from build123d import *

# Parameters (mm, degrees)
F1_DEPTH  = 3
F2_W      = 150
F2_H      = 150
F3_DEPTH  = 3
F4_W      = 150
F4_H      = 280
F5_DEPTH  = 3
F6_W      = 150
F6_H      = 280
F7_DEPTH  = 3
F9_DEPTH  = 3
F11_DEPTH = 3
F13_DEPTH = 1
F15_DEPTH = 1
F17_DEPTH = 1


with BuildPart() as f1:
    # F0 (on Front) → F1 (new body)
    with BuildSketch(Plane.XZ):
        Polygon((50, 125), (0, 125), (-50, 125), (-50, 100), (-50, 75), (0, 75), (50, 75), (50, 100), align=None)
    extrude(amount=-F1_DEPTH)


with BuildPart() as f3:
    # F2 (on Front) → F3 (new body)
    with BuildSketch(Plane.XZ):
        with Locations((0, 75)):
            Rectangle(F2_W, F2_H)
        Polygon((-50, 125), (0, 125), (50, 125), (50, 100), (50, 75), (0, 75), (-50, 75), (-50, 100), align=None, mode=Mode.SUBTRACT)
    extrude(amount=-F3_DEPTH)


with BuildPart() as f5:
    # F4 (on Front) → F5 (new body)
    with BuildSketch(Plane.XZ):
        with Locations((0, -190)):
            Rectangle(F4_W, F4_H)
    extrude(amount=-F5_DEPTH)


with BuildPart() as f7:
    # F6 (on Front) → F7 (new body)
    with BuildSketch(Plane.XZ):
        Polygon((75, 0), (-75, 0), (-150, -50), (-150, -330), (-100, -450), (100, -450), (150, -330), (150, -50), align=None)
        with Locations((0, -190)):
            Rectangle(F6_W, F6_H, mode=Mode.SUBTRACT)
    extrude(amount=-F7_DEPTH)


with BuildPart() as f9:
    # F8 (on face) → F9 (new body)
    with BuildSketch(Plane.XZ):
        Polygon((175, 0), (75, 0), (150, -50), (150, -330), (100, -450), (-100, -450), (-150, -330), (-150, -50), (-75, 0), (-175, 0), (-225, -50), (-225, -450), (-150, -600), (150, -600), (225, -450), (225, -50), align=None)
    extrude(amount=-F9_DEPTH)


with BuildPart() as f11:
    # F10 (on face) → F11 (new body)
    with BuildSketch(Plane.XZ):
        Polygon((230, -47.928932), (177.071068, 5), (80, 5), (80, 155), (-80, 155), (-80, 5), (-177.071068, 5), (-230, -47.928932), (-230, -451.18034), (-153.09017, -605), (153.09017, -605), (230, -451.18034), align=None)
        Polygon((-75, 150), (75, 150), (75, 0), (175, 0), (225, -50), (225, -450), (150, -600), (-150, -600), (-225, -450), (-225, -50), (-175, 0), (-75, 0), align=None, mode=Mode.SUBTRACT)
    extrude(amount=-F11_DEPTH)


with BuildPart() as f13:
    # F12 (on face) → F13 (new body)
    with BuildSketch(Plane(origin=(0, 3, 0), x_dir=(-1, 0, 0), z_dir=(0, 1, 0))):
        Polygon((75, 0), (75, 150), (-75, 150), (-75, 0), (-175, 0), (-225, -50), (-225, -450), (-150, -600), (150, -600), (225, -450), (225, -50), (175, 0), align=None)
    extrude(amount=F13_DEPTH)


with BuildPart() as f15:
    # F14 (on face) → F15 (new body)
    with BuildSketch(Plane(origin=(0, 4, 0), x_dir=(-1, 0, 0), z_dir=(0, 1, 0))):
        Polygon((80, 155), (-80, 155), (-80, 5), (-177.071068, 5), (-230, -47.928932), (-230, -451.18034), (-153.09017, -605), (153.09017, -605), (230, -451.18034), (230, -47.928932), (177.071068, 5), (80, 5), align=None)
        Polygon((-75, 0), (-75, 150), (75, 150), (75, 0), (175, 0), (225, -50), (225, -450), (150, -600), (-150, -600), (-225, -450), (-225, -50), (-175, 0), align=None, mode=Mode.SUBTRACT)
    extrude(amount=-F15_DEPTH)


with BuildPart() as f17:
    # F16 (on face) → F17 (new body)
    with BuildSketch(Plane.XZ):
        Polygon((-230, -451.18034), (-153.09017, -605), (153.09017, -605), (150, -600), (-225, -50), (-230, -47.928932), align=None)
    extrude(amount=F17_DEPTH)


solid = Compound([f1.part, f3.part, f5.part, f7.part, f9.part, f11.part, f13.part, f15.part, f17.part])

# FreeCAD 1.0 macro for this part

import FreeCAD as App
import Part
import Sketcher

V = App.Vector
Q = App.Units.Quantity

doc = App.newDocument("Part")
body = doc.addObject("PartDesign::Body", "Body")

sketch1 = doc.addObject("Sketcher::SketchObject", "Sketch")
body.addObject(sketch1)
sketch1.AttachmentSupport = (doc.XZ_Plane, [""])
sketch1.MapMode = "FlatFace"
sketch1.addGeometry(Part.LineSegment(V(50, 125, 0), V(-50, 125, 0)), False)
sketch1.addGeometry(Part.LineSegment(V(-50, 125, 0), V(-50, 75, 0)), False)
sketch1.addGeometry(Part.LineSegment(V(-50, 75, 0), V(50, 75, 0)), False)
sketch1.addGeometry(Part.LineSegment(V(50, 75, 0), V(50, 125, 0)), False)
sketch1.addConstraint(Sketcher.Constraint("Coincident", 0, 2, 1, 1))
sketch1.addConstraint(Sketcher.Constraint("Coincident", 1, 2, 2, 1))
sketch1.addConstraint(Sketcher.Constraint("Coincident", 2, 2, 3, 1))
sketch1.addConstraint(Sketcher.Constraint("Coincident", 3, 2, 0, 1))
sketch1.addConstraint(Sketcher.Constraint("Horizontal", 0))
sketch1.addConstraint(Sketcher.Constraint("Vertical", 1))
sketch1.addConstraint(Sketcher.Constraint("Horizontal", 2))
sketch1.addConstraint(Sketcher.Constraint("Vertical", 3))
sketch1.addConstraint(Sketcher.Constraint("DistanceX", 0, 2, 0, 1, 100.0))
sketch1.addConstraint(Sketcher.Constraint("DistanceY", 1, 2, 1, 1, 50.0))
sketch1.addConstraint(Sketcher.Constraint("DistanceX", 0, 2, -1, 1, 50.0))
sketch1.addConstraint(Sketcher.Constraint("DistanceY", -1, 1, 0, 2, 125.0))
pad1 = doc.addObject("PartDesign::Pad", "Pad")
body.addObject(pad1)
pad1.Profile = sketch1
pad1.Length = 3
pad1.Reversed = True
body2 = doc.addObject("PartDesign::Body", "Body001")

sketch2 = doc.addObject("Sketcher::SketchObject", "Sketch001")
body2.addObject(sketch2)
sketch2.AttachmentSupport = (doc.getObject("XZ_Plane001"), [""])
sketch2.MapMode = "FlatFace"
sketch2.addGeometry(Part.LineSegment(V(-75, 150, 0), V(-75, 0, 0)), False)
sketch2.addGeometry(Part.LineSegment(V(-75, 0, 0), V(75, 0, 0)), False)
sketch2.addGeometry(Part.LineSegment(V(75, 0, 0), V(75, 150, 0)), False)
sketch2.addGeometry(Part.LineSegment(V(75, 150, 0), V(-75, 150, 0)), False)
sketch2.addGeometry(Part.LineSegment(V(-50, 75, 0), V(-50, 125, 0)), False)
sketch2.addGeometry(Part.LineSegment(V(-50, 125, 0), V(50, 125, 0)), False)
sketch2.addGeometry(Part.LineSegment(V(50, 125, 0), V(50, 75, 0)), False)
sketch2.addGeometry(Part.LineSegment(V(50, 75, 0), V(-50, 75, 0)), False)
sketch2.addConstraint(Sketcher.Constraint("Coincident", 0, 2, 1, 1))
sketch2.addConstraint(Sketcher.Constraint("Coincident", 1, 2, 2, 1))
sketch2.addConstraint(Sketcher.Constraint("Coincident", 2, 2, 3, 1))
sketch2.addConstraint(Sketcher.Constraint("Coincident", 3, 2, 0, 1))
sketch2.addConstraint(Sketcher.Constraint("Coincident", 4, 2, 5, 1))
sketch2.addConstraint(Sketcher.Constraint("Coincident", 5, 2, 6, 1))
sketch2.addConstraint(Sketcher.Constraint("Coincident", 6, 2, 7, 1))
sketch2.addConstraint(Sketcher.Constraint("Coincident", 7, 2, 4, 1))
sketch2.addConstraint(Sketcher.Constraint("Vertical", 0))
sketch2.addConstraint(Sketcher.Constraint("Horizontal", 1))
sketch2.addConstraint(Sketcher.Constraint("Vertical", 2))
sketch2.addConstraint(Sketcher.Constraint("Horizontal", 3))
sketch2.addConstraint(Sketcher.Constraint("Vertical", 4))
sketch2.addConstraint(Sketcher.Constraint("Horizontal", 5))
sketch2.addConstraint(Sketcher.Constraint("Vertical", 6))
sketch2.addConstraint(Sketcher.Constraint("Horizontal", 7))
sketch2.addConstraint(Sketcher.Constraint("Symmetric", 0, 2, 1, 2, -1, 1))
sketch2.addConstraint(Sketcher.Constraint("Equal", 3, 0))
sketch2.addConstraint(Sketcher.Constraint("DistanceX", 1, 1, 1, 2, 150.0))
sketch2.addConstraint(Sketcher.Constraint("DistanceX", 5, 1, 5, 2, 100.0))
sketch2.addConstraint(Sketcher.Constraint("DistanceY", 4, 1, 4, 2, 50.0))
sketch2.addConstraint(Sketcher.Constraint("DistanceX", 4, 2, -1, 1, 50.0))
sketch2.addConstraint(Sketcher.Constraint("DistanceY", -1, 1, 4, 2, 125.0))
pad2 = doc.addObject("PartDesign::Pad", "Pad001")
body2.addObject(pad2)
pad2.Profile = sketch2
pad2.Length = 3
pad2.Reversed = True
body3 = doc.addObject("PartDesign::Body", "Body002")

sketch3 = doc.addObject("Sketcher::SketchObject", "Sketch002")
body3.addObject(sketch3)
sketch3.AttachmentSupport = (doc.getObject("XZ_Plane002"), [""])
sketch3.MapMode = "FlatFace"
sketch3.addGeometry(Part.LineSegment(V(-75, -50, 0), V(-75, -330, 0)), False)
sketch3.addGeometry(Part.LineSegment(V(-75, -330, 0), V(75, -330, 0)), False)
sketch3.addGeometry(Part.LineSegment(V(75, -330, 0), V(75, -50, 0)), False)
sketch3.addGeometry(Part.LineSegment(V(75, -50, 0), V(-75, -50, 0)), False)
sketch3.addConstraint(Sketcher.Constraint("Coincident", 0, 2, 1, 1))
sketch3.addConstraint(Sketcher.Constraint("Coincident", 1, 2, 2, 1))
sketch3.addConstraint(Sketcher.Constraint("Coincident", 2, 2, 3, 1))
sketch3.addConstraint(Sketcher.Constraint("Coincident", 3, 2, 0, 1))
sketch3.addConstraint(Sketcher.Constraint("Vertical", 0))
sketch3.addConstraint(Sketcher.Constraint("Horizontal", 1))
sketch3.addConstraint(Sketcher.Constraint("Vertical", 2))
sketch3.addConstraint(Sketcher.Constraint("Horizontal", 3))
sketch3.addConstraint(Sketcher.Constraint("DistanceX", 1, 1, 1, 2, 150.0))
sketch3.addConstraint(Sketcher.Constraint("DistanceY", 0, 2, 0, 1, 280.0))
sketch3.addConstraint(Sketcher.Constraint("DistanceX", 0, 2, -1, 1, 75.0))
sketch3.addConstraint(Sketcher.Constraint("DistanceY", 0, 2, -1, 1, 330.0))
pad3 = doc.addObject("PartDesign::Pad", "Pad002")
body3.addObject(pad3)
pad3.Profile = sketch3
pad3.Length = 3
pad3.Reversed = True
body4 = doc.addObject("PartDesign::Body", "Body003")

sketch4 = doc.addObject("Sketcher::SketchObject", "Sketch003")
body4.addObject(sketch4)
sketch4.AttachmentSupport = (doc.getObject("XZ_Plane003"), [""])
sketch4.MapMode = "FlatFace"
sketch4.addGeometry(Part.LineSegment(V(75, 0, 0), V(-75, 0, 0)), False)
sketch4.addGeometry(Part.LineSegment(V(-75, 0, 0), V(-150, -50, 0)), False)
sketch4.addGeometry(Part.LineSegment(V(-150, -50, 0), V(-150, -330, 0)), False)
sketch4.addGeometry(Part.LineSegment(V(-150, -330, 0), V(-100, -450, 0)), False)
sketch4.addGeometry(Part.LineSegment(V(-100, -450, 0), V(100, -450, 0)), False)
sketch4.addGeometry(Part.LineSegment(V(100, -450, 0), V(150, -330, 0)), False)
sketch4.addGeometry(Part.LineSegment(V(150, -330, 0), V(150, -50, 0)), False)
sketch4.addGeometry(Part.LineSegment(V(150, -50, 0), V(75, 0, 0)), False)
sketch4.addGeometry(Part.LineSegment(V(75, -330, 0), V(-75, -330, 0)), False)
sketch4.addGeometry(Part.LineSegment(V(-75, -330, 0), V(-75, -50, 0)), False)
sketch4.addGeometry(Part.LineSegment(V(-75, -50, 0), V(75, -50, 0)), False)
sketch4.addGeometry(Part.LineSegment(V(75, -50, 0), V(75, -330, 0)), False)
sketch4.addConstraint(Sketcher.Constraint("Coincident", 0, 2, 1, 1))
sketch4.addConstraint(Sketcher.Constraint("Coincident", 1, 2, 2, 1))
sketch4.addConstraint(Sketcher.Constraint("Coincident", 2, 2, 3, 1))
sketch4.addConstraint(Sketcher.Constraint("Coincident", 3, 2, 4, 1))
sketch4.addConstraint(Sketcher.Constraint("Coincident", 4, 2, 5, 1))
sketch4.addConstraint(Sketcher.Constraint("Coincident", 5, 2, 6, 1))
sketch4.addConstraint(Sketcher.Constraint("Coincident", 6, 2, 7, 1))
sketch4.addConstraint(Sketcher.Constraint("Coincident", 7, 2, 0, 1))
sketch4.addConstraint(Sketcher.Constraint("Coincident", 8, 2, 9, 1))
sketch4.addConstraint(Sketcher.Constraint("Coincident", 9, 2, 10, 1))
sketch4.addConstraint(Sketcher.Constraint("Coincident", 10, 2, 11, 1))
sketch4.addConstraint(Sketcher.Constraint("Coincident", 11, 2, 8, 1))
sketch4.addConstraint(Sketcher.Constraint("Horizontal", 0))
sketch4.addConstraint(Sketcher.Constraint("Vertical", 2))
sketch4.addConstraint(Sketcher.Constraint("Horizontal", 4))
sketch4.addConstraint(Sketcher.Constraint("Vertical", 6))
sketch4.addConstraint(Sketcher.Constraint("Horizontal", 8))
sketch4.addConstraint(Sketcher.Constraint("Vertical", 9))
sketch4.addConstraint(Sketcher.Constraint("Horizontal", 10))
sketch4.addConstraint(Sketcher.Constraint("Vertical", 11))
sketch4.addConstraint(Sketcher.Constraint("Symmetric", 0, 2, 7, 2, -1, 1))
sketch4.addConstraint(Sketcher.Constraint("Symmetric", 2, 2, 5, 2, -2))
sketch4.addConstraint(Sketcher.Constraint("Horizontal", 1, 2, 6, 2))
sketch4.addConstraint(Sketcher.Constraint("Horizontal", 5, 2, 8, 2))
sketch4.addConstraint(Sketcher.Constraint("Horizontal", 6, 2, 9, 2))
sketch4.addConstraint(Sketcher.Constraint("Vertical", 0, 2, 8, 2))
sketch4.addConstraint(Sketcher.Constraint("Vertical", 7, 2, 10, 2))
sketch4.addConstraint(Sketcher.Constraint("Equal", 3, 5))
sketch4.addConstraint(Sketcher.Constraint("DistanceX", 0, 2, 0, 1, 150.0))
sketch4.addConstraint(Sketcher.Constraint("DistanceX", 4, 1, 4, 2, 200.0))
sketch4.addConstraint(Sketcher.Constraint("DistanceY", 2, 2, 2, 1, 280.0))
sketch4.addConstraint(Sketcher.Constraint("Distance", 3, 130.0))
sketch4.addConstraint(Sketcher.Constraint("DistanceX", 1, 2, -1, 1, 150.0))
sketch4.addConstraint(Sketcher.Constraint("DistanceY", 1, 2, -1, 1, 50.0))
pad4 = doc.addObject("PartDesign::Pad", "Pad003")
body4.addObject(pad4)
pad4.Profile = sketch4
pad4.Length = 3
pad4.Reversed = True
body5 = doc.addObject("PartDesign::Body", "Body004")

sketch5 = doc.addObject("Sketcher::SketchObject", "Sketch004")
body5.addObject(sketch5)
sketch5.AttachmentSupport = (doc.getObject("XZ_Plane004"), [""])
sketch5.MapMode = "FlatFace"
sketch5.addGeometry(Part.LineSegment(V(175, 0, 0), V(75, 0, 0)), False)
sketch5.addGeometry(Part.LineSegment(V(75, 0, 0), V(150, -50, 0)), False)
sketch5.addGeometry(Part.LineSegment(V(150, -50, 0), V(150, -330, 0)), False)
sketch5.addGeometry(Part.LineSegment(V(150, -330, 0), V(100, -450, 0)), False)
sketch5.addGeometry(Part.LineSegment(V(100, -450, 0), V(-100, -450, 0)), False)
sketch5.addGeometry(Part.LineSegment(V(-100, -450, 0), V(-150, -330, 0)), False)
sketch5.addGeometry(Part.LineSegment(V(-150, -330, 0), V(-150, -50, 0)), False)
sketch5.addGeometry(Part.LineSegment(V(-150, -50, 0), V(-75, 0, 0)), False)
sketch5.addGeometry(Part.LineSegment(V(-75, 0, 0), V(-175, 0, 0)), False)
sketch5.addGeometry(Part.LineSegment(V(-175, 0, 0), V(-225, -50, 0)), False)
sketch5.addGeometry(Part.LineSegment(V(-225, -50, 0), V(-225, -450, 0)), False)
sketch5.addGeometry(Part.LineSegment(V(-225, -450, 0), V(-150, -600, 0)), False)
sketch5.addGeometry(Part.LineSegment(V(-150, -600, 0), V(150, -600, 0)), False)
sketch5.addGeometry(Part.LineSegment(V(150, -600, 0), V(225, -450, 0)), False)
sketch5.addGeometry(Part.LineSegment(V(225, -450, 0), V(225, -50, 0)), False)
sketch5.addGeometry(Part.LineSegment(V(225, -50, 0), V(175, 0, 0)), False)
sketch5.addConstraint(Sketcher.Constraint("Coincident", 0, 2, 1, 1))
sketch5.addConstraint(Sketcher.Constraint("Coincident", 1, 2, 2, 1))
sketch5.addConstraint(Sketcher.Constraint("Coincident", 2, 2, 3, 1))
sketch5.addConstraint(Sketcher.Constraint("Coincident", 3, 2, 4, 1))
sketch5.addConstraint(Sketcher.Constraint("Coincident", 4, 2, 5, 1))
sketch5.addConstraint(Sketcher.Constraint("Coincident", 5, 2, 6, 1))
sketch5.addConstraint(Sketcher.Constraint("Coincident", 6, 2, 7, 1))
sketch5.addConstraint(Sketcher.Constraint("Coincident", 7, 2, 8, 1))
sketch5.addConstraint(Sketcher.Constraint("Coincident", 8, 2, 9, 1))
sketch5.addConstraint(Sketcher.Constraint("Coincident", 9, 2, 10, 1))
sketch5.addConstraint(Sketcher.Constraint("Coincident", 10, 2, 11, 1))
sketch5.addConstraint(Sketcher.Constraint("Coincident", 11, 2, 12, 1))
sketch5.addConstraint(Sketcher.Constraint("Coincident", 12, 2, 13, 1))
sketch5.addConstraint(Sketcher.Constraint("Coincident", 13, 2, 14, 1))
sketch5.addConstraint(Sketcher.Constraint("Coincident", 14, 2, 15, 1))
sketch5.addConstraint(Sketcher.Constraint("Coincident", 15, 2, 0, 1))
sketch5.addConstraint(Sketcher.Constraint("Horizontal", 0))
sketch5.addConstraint(Sketcher.Constraint("Vertical", 2))
sketch5.addConstraint(Sketcher.Constraint("Horizontal", 4))
sketch5.addConstraint(Sketcher.Constraint("Vertical", 6))
sketch5.addConstraint(Sketcher.Constraint("Horizontal", 8))
sketch5.addConstraint(Sketcher.Constraint("Vertical", 10))
sketch5.addConstraint(Sketcher.Constraint("Horizontal", 12))
sketch5.addConstraint(Sketcher.Constraint("Vertical", 14))
sketch5.addConstraint(Sketcher.Constraint("Symmetric", 0, 2, 7, 2, -1, 1))
sketch5.addConstraint(Sketcher.Constraint("Symmetric", 2, 2, 5, 2, -2))
sketch5.addConstraint(Sketcher.Constraint("Symmetric", 10, 2, 13, 2, -2))
sketch5.addConstraint(Sketcher.Constraint("Symmetric", 8, 2, 15, 2, -2))
sketch5.addConstraint(Sketcher.Constraint("Perpendicular", 9, 15))
sketch5.addConstraint(Sketcher.Constraint("Horizontal", 1, 2, 6, 2))
sketch5.addConstraint(Sketcher.Constraint("Horizontal", 6, 2, 9, 2))
sketch5.addConstraint(Sketcher.Constraint("Horizontal", 4, 2, 10, 2))
sketch5.addConstraint(Sketcher.Constraint("Horizontal", 9, 2, 14, 2))
sketch5.addConstraint(Sketcher.Constraint("Vertical", 6, 2, 11, 2))
sketch5.addConstraint(Sketcher.Constraint("Vertical", 2, 2, 12, 2))
sketch5.addConstraint(Sketcher.Constraint("Equal", 3, 5))
sketch5.addConstraint(Sketcher.Constraint("DistanceX", 0, 2, 0, 1, 100.0))
sketch5.addConstraint(Sketcher.Constraint("DistanceX", 4, 2, 4, 1, 200.0))
sketch5.addConstraint(Sketcher.Constraint("DistanceX", 12, 1, 12, 2, 300.0))
sketch5.addConstraint(Sketcher.Constraint("DistanceY", 2, 2, 2, 1, 280.0))
sketch5.addConstraint(Sketcher.Constraint("DistanceY", 10, 2, 10, 1, 400.0))
sketch5.addConstraint(Sketcher.Constraint("DistanceX", -1, 1, 0, 2, 75.0))
sketch5.addConstraint(Sketcher.Constraint("DistanceY", 1, 2, -1, 1, 50.0))
sketch5.addConstraint(Sketcher.Constraint("DistanceY", 11, 2, -1, 1, 600.0))
pad5 = doc.addObject("PartDesign::Pad", "Pad004")
body5.addObject(pad5)
pad5.Profile = sketch5
pad5.Length = 3
pad5.Reversed = True
body6 = doc.addObject("PartDesign::Body", "Body005")

sketch6 = doc.addObject("Sketcher::SketchObject", "Sketch005")
body6.addObject(sketch6)
sketch6.AttachmentSupport = (doc.getObject("XZ_Plane005"), [""])
sketch6.MapMode = "FlatFace"
sketch6.addGeometry(Part.LineSegment(V(230, -48, 0), V(177, 5, 0)), False)
sketch6.addGeometry(Part.LineSegment(V(177, 5, 0), V(80, 5, 0)), False)
sketch6.addGeometry(Part.LineSegment(V(80, 5, 0), V(80, 155, 0)), False)
sketch6.addGeometry(Part.LineSegment(V(80, 155, 0), V(-80, 155, 0)), False)
sketch6.addGeometry(Part.LineSegment(V(-80, 155, 0), V(-80, 5, 0)), False)
sketch6.addGeometry(Part.LineSegment(V(-80, 5, 0), V(-177, 5, 0)), False)
sketch6.addGeometry(Part.LineSegment(V(-177, 5, 0), V(-230, -48, 0)), False)
sketch6.addGeometry(Part.LineSegment(V(-230, -48, 0), V(-230, -451, 0)), False)
sketch6.addGeometry(Part.LineSegment(V(-230, -451, 0), V(-153, -605, 0)), False)
sketch6.addGeometry(Part.LineSegment(V(-153, -605, 0), V(153, -605, 0)), False)
sketch6.addGeometry(Part.LineSegment(V(153, -605, 0), V(230, -451, 0)), False)
sketch6.addGeometry(Part.LineSegment(V(230, -451, 0), V(230, -48, 0)), False)
sketch6.addGeometry(Part.LineSegment(V(-75, 0, 0), V(-75, 150, 0)), False)
sketch6.addGeometry(Part.LineSegment(V(-75, 150, 0), V(75, 150, 0)), False)
sketch6.addGeometry(Part.LineSegment(V(75, 150, 0), V(75, 0, 0)), False)
sketch6.addGeometry(Part.LineSegment(V(75, 0, 0), V(175, 0, 0)), False)
sketch6.addGeometry(Part.LineSegment(V(175, 0, 0), V(225, -50, 0)), False)
sketch6.addGeometry(Part.LineSegment(V(225, -50, 0), V(225, -450, 0)), False)
sketch6.addGeometry(Part.LineSegment(V(225, -450, 0), V(150, -600, 0)), False)
sketch6.addGeometry(Part.LineSegment(V(150, -600, 0), V(-150, -600, 0)), False)
sketch6.addGeometry(Part.LineSegment(V(-150, -600, 0), V(-225, -450, 0)), False)
sketch6.addGeometry(Part.LineSegment(V(-225, -450, 0), V(-225, -50, 0)), False)
sketch6.addGeometry(Part.LineSegment(V(-225, -50, 0), V(-175, 0, 0)), False)
sketch6.addGeometry(Part.LineSegment(V(-175, 0, 0), V(-75, 0, 0)), False)
sketch6.addConstraint(Sketcher.Constraint("Coincident", 0, 2, 1, 1))
sketch6.addConstraint(Sketcher.Constraint("Coincident", 1, 2, 2, 1))
sketch6.addConstraint(Sketcher.Constraint("Coincident", 2, 2, 3, 1))
sketch6.addConstraint(Sketcher.Constraint("Coincident", 3, 2, 4, 1))
sketch6.addConstraint(Sketcher.Constraint("Coincident", 4, 2, 5, 1))
sketch6.addConstraint(Sketcher.Constraint("Coincident", 5, 2, 6, 1))
sketch6.addConstraint(Sketcher.Constraint("Coincident", 6, 2, 7, 1))
sketch6.addConstraint(Sketcher.Constraint("Coincident", 7, 2, 8, 1))
sketch6.addConstraint(Sketcher.Constraint("Coincident", 8, 2, 9, 1))
sketch6.addConstraint(Sketcher.Constraint("Coincident", 9, 2, 10, 1))
sketch6.addConstraint(Sketcher.Constraint("Coincident", 10, 2, 11, 1))
sketch6.addConstraint(Sketcher.Constraint("Coincident", 11, 2, 0, 1))
sketch6.addConstraint(Sketcher.Constraint("Coincident", 12, 2, 13, 1))
sketch6.addConstraint(Sketcher.Constraint("Coincident", 13, 2, 14, 1))
sketch6.addConstraint(Sketcher.Constraint("Coincident", 14, 2, 15, 1))
sketch6.addConstraint(Sketcher.Constraint("Coincident", 15, 2, 16, 1))
sketch6.addConstraint(Sketcher.Constraint("Coincident", 16, 2, 17, 1))
sketch6.addConstraint(Sketcher.Constraint("Coincident", 17, 2, 18, 1))
sketch6.addConstraint(Sketcher.Constraint("Coincident", 18, 2, 19, 1))
sketch6.addConstraint(Sketcher.Constraint("Coincident", 19, 2, 20, 1))
sketch6.addConstraint(Sketcher.Constraint("Coincident", 20, 2, 21, 1))
sketch6.addConstraint(Sketcher.Constraint("Coincident", 21, 2, 22, 1))
sketch6.addConstraint(Sketcher.Constraint("Coincident", 22, 2, 23, 1))
sketch6.addConstraint(Sketcher.Constraint("Coincident", 23, 2, 12, 1))
sketch6.addConstraint(Sketcher.Constraint("Horizontal", 1))
sketch6.addConstraint(Sketcher.Constraint("Vertical", 2))
sketch6.addConstraint(Sketcher.Constraint("Horizontal", 3))
sketch6.addConstraint(Sketcher.Constraint("Vertical", 4))
sketch6.addConstraint(Sketcher.Constraint("Horizontal", 5))
sketch6.addConstraint(Sketcher.Constraint("Vertical", 7))
sketch6.addConstraint(Sketcher.Constraint("Horizontal", 9))
sketch6.addConstraint(Sketcher.Constraint("Vertical", 11))
sketch6.addConstraint(Sketcher.Constraint("Vertical", 12))
sketch6.addConstraint(Sketcher.Constraint("Horizontal", 13))
sketch6.addConstraint(Sketcher.Constraint("Vertical", 14))
sketch6.addConstraint(Sketcher.Constraint("Horizontal", 15))
sketch6.addConstraint(Sketcher.Constraint("Vertical", 17))
sketch6.addConstraint(Sketcher.Constraint("Horizontal", 19))
sketch6.addConstraint(Sketcher.Constraint("Vertical", 21))
sketch6.addConstraint(Sketcher.Constraint("Horizontal", 23))
sketch6.addConstraint(Sketcher.Constraint("Symmetric", 15, 2, 22, 2, -1, 1))
sketch6.addConstraint(Sketcher.Constraint("Symmetric", 1, 2, 4, 2, -2))
sketch6.addConstraint(Sketcher.Constraint("Symmetric", 7, 2, 10, 2, -2))
sketch6.addConstraint(Sketcher.Constraint("Symmetric", 17, 2, 20, 2, -2))
sketch6.addConstraint(Sketcher.Constraint("Symmetric", 14, 2, 23, 2, -2))
sketch6.addConstraint(Sketcher.Constraint("Perpendicular", 0, 6))
sketch6.addConstraint(Sketcher.Constraint("Perpendicular", 6, 16))
sketch6.addConstraint(Sketcher.Constraint("Parallel", 10, 18))
sketch6.addConstraint(Sketcher.Constraint("Parallel", 8, 20))
sketch6.addConstraint(Sketcher.Constraint("Perpendicular", 16, 22))
sketch6.addConstraint(Sketcher.Constraint("Horizontal", 6, 2, 11, 2))
sketch6.addConstraint(Sketcher.Constraint("Horizontal", 16, 2, 21, 2))
sketch6.addConstraint(Sketcher.Constraint("Equal", 13, 2))
sketch6.addConstraint(Sketcher.Constraint("Equal", 4, 12))
sketch6.addConstraint(Sketcher.Constraint("Equal", 8, 10))
sketch6.addConstraint(Sketcher.Constraint("DistanceX", 3, 2, 3, 1, 160.0))
sketch6.addConstraint(Sketcher.Constraint("DistanceX", 13, 1, 13, 2, 150.0))
sketch6.addConstraint(Sketcher.Constraint("DistanceX", 15, 1, 15, 2, 100.0))
sketch6.addConstraint(Sketcher.Constraint("DistanceX", 19, 2, 19, 1, 300.0))
sketch6.addConstraint(Sketcher.Constraint("DistanceY", 17, 2, 17, 1, 400.0))
sketch6.addConstraint(Sketcher.Constraint("DistanceY", -1, 1, 0, 2, 5.0))
sketch6.addConstraint(Sketcher.Constraint("DistanceX", 6, 2, -1, 1, 230.0))
sketch6.addConstraint(Sketcher.Constraint("DistanceY", 8, 2, -1, 1, 605.0))
sketch6.addConstraint(Sketcher.Constraint("DistanceX", -1, 1, 16, 2, 225.0))
sketch6.addConstraint(Sketcher.Constraint("DistanceY", 18, 2, -1, 1, 600.0))
sketch6.addConstraint(Sketcher.Constraint("DistanceX", 9, 1, 9, 2, 306.18034))
sketch6.addConstraint(Sketcher.Constraint("DistanceX", 1, 2, 1, 1, 97.071068))
pad6 = doc.addObject("PartDesign::Pad", "Pad005")
body6.addObject(pad6)
pad6.Profile = sketch6
pad6.Length = 3
pad6.Reversed = True
body7 = doc.addObject("PartDesign::Body", "Body006")

sketch7 = doc.addObject("Sketcher::SketchObject", "Sketch006")
body7.addObject(sketch7)
sketch7.AttachmentSupport = (doc.getObject("XZ_Plane006"), [""])
sketch7.MapMode = "FlatFace"
sketch7.AttachmentOffset = App.Placement(V(0, 0, -3), App.Rotation())
sketch7.addGeometry(Part.LineSegment(V(-75, 0, 0), V(-75, 150, 0)), False)
sketch7.addGeometry(Part.LineSegment(V(-75, 150, 0), V(75, 150, 0)), False)
sketch7.addGeometry(Part.LineSegment(V(75, 150, 0), V(75, 0, 0)), False)
sketch7.addGeometry(Part.LineSegment(V(75, 0, 0), V(175, 0, 0)), False)
sketch7.addGeometry(Part.LineSegment(V(175, 0, 0), V(225, -50, 0)), False)
sketch7.addGeometry(Part.LineSegment(V(225, -50, 0), V(225, -450, 0)), False)
sketch7.addGeometry(Part.LineSegment(V(225, -450, 0), V(150, -600, 0)), False)
sketch7.addGeometry(Part.LineSegment(V(150, -600, 0), V(-150, -600, 0)), False)
sketch7.addGeometry(Part.LineSegment(V(-150, -600, 0), V(-225, -450, 0)), False)
sketch7.addGeometry(Part.LineSegment(V(-225, -450, 0), V(-225, -50, 0)), False)
sketch7.addGeometry(Part.LineSegment(V(-225, -50, 0), V(-175, 0, 0)), False)
sketch7.addGeometry(Part.LineSegment(V(-175, 0, 0), V(-75, 0, 0)), False)
sketch7.addConstraint(Sketcher.Constraint("Coincident", 0, 2, 1, 1))
sketch7.addConstraint(Sketcher.Constraint("Coincident", 1, 2, 2, 1))
sketch7.addConstraint(Sketcher.Constraint("Coincident", 2, 2, 3, 1))
sketch7.addConstraint(Sketcher.Constraint("Coincident", 3, 2, 4, 1))
sketch7.addConstraint(Sketcher.Constraint("Coincident", 4, 2, 5, 1))
sketch7.addConstraint(Sketcher.Constraint("Coincident", 5, 2, 6, 1))
sketch7.addConstraint(Sketcher.Constraint("Coincident", 6, 2, 7, 1))
sketch7.addConstraint(Sketcher.Constraint("Coincident", 7, 2, 8, 1))
sketch7.addConstraint(Sketcher.Constraint("Coincident", 8, 2, 9, 1))
sketch7.addConstraint(Sketcher.Constraint("Coincident", 9, 2, 10, 1))
sketch7.addConstraint(Sketcher.Constraint("Coincident", 10, 2, 11, 1))
sketch7.addConstraint(Sketcher.Constraint("Coincident", 11, 2, 0, 1))
sketch7.addConstraint(Sketcher.Constraint("Vertical", 0))
sketch7.addConstraint(Sketcher.Constraint("Horizontal", 1))
sketch7.addConstraint(Sketcher.Constraint("Vertical", 2))
sketch7.addConstraint(Sketcher.Constraint("Horizontal", 3))
sketch7.addConstraint(Sketcher.Constraint("Vertical", 5))
sketch7.addConstraint(Sketcher.Constraint("Horizontal", 7))
sketch7.addConstraint(Sketcher.Constraint("Vertical", 9))
sketch7.addConstraint(Sketcher.Constraint("Horizontal", 11))
sketch7.addConstraint(Sketcher.Constraint("Symmetric", 3, 2, 10, 2, -1, 1))
sketch7.addConstraint(Sketcher.Constraint("Symmetric", 5, 2, 8, 2, -2))
sketch7.addConstraint(Sketcher.Constraint("Symmetric", 2, 2, 11, 2, -2))
sketch7.addConstraint(Sketcher.Constraint("Perpendicular", 4, 10))
sketch7.addConstraint(Sketcher.Constraint("Horizontal", 4, 2, 9, 2))
sketch7.addConstraint(Sketcher.Constraint("Equal", 1, 0))
sketch7.addConstraint(Sketcher.Constraint("Equal", 6, 8))
sketch7.addConstraint(Sketcher.Constraint("DistanceX", 1, 1, 1, 2, 150.0))
sketch7.addConstraint(Sketcher.Constraint("DistanceX", 3, 1, 3, 2, 100.0))
sketch7.addConstraint(Sketcher.Constraint("DistanceX", 7, 2, 7, 1, 300.0))
sketch7.addConstraint(Sketcher.Constraint("DistanceY", 5, 2, 5, 1, 400.0))
sketch7.addConstraint(Sketcher.Constraint("DistanceX", -1, 1, 4, 2, 225.0))
sketch7.addConstraint(Sketcher.Constraint("DistanceY", 6, 2, -1, 1, 600.0))
pad7 = doc.addObject("PartDesign::Pad", "Pad006")
body7.addObject(pad7)
pad7.Profile = sketch7
pad7.Length = 1
pad7.Reversed = True
body8 = doc.addObject("PartDesign::Body", "Body007")

sketch8 = doc.addObject("Sketcher::SketchObject", "Sketch007")
body8.addObject(sketch8)
sketch8.AttachmentSupport = (doc.getObject("XZ_Plane007"), [""])
sketch8.MapMode = "FlatFace"
sketch8.AttachmentOffset = App.Placement(V(0, 0, -4), App.Rotation())
sketch8.addGeometry(Part.LineSegment(V(-80, 155, 0), V(80, 155, 0)), False)
sketch8.addGeometry(Part.LineSegment(V(80, 155, 0), V(80, 5, 0)), False)
sketch8.addGeometry(Part.LineSegment(V(80, 5, 0), V(177, 5, 0)), False)
sketch8.addGeometry(Part.LineSegment(V(177, 5, 0), V(230, -48, 0)), False)
sketch8.addGeometry(Part.LineSegment(V(230, -48, 0), V(230, -451, 0)), False)
sketch8.addGeometry(Part.LineSegment(V(230, -451, 0), V(153, -605, 0)), False)
sketch8.addGeometry(Part.LineSegment(V(153, -605, 0), V(-153, -605, 0)), False)
sketch8.addGeometry(Part.LineSegment(V(-153, -605, 0), V(-230, -451, 0)), False)
sketch8.addGeometry(Part.LineSegment(V(-230, -451, 0), V(-230, -48, 0)), False)
sketch8.addGeometry(Part.LineSegment(V(-230, -48, 0), V(-177, 5, 0)), False)
sketch8.addGeometry(Part.LineSegment(V(-177, 5, 0), V(-80, 5, 0)), False)
sketch8.addGeometry(Part.LineSegment(V(-80, 5, 0), V(-80, 155, 0)), False)
sketch8.addGeometry(Part.LineSegment(V(175, 0, 0), V(75, 0, 0)), False)
sketch8.addGeometry(Part.LineSegment(V(75, 0, 0), V(75, 150, 0)), False)
sketch8.addGeometry(Part.LineSegment(V(75, 150, 0), V(-75, 150, 0)), False)
sketch8.addGeometry(Part.LineSegment(V(-75, 150, 0), V(-75, 0, 0)), False)
sketch8.addGeometry(Part.LineSegment(V(-75, 0, 0), V(-175, 0, 0)), False)
sketch8.addGeometry(Part.LineSegment(V(-175, 0, 0), V(-225, -50, 0)), False)
sketch8.addGeometry(Part.LineSegment(V(-225, -50, 0), V(-225, -450, 0)), False)
sketch8.addGeometry(Part.LineSegment(V(-225, -450, 0), V(-150, -600, 0)), False)
sketch8.addGeometry(Part.LineSegment(V(-150, -600, 0), V(150, -600, 0)), False)
sketch8.addGeometry(Part.LineSegment(V(150, -600, 0), V(225, -450, 0)), False)
sketch8.addGeometry(Part.LineSegment(V(225, -450, 0), V(225, -50, 0)), False)
sketch8.addGeometry(Part.LineSegment(V(225, -50, 0), V(175, 0, 0)), False)
sketch8.addConstraint(Sketcher.Constraint("Coincident", 0, 2, 1, 1))
sketch8.addConstraint(Sketcher.Constraint("Coincident", 1, 2, 2, 1))
sketch8.addConstraint(Sketcher.Constraint("Coincident", 2, 2, 3, 1))
sketch8.addConstraint(Sketcher.Constraint("Coincident", 3, 2, 4, 1))
sketch8.addConstraint(Sketcher.Constraint("Coincident", 4, 2, 5, 1))
sketch8.addConstraint(Sketcher.Constraint("Coincident", 5, 2, 6, 1))
sketch8.addConstraint(Sketcher.Constraint("Coincident", 6, 2, 7, 1))
sketch8.addConstraint(Sketcher.Constraint("Coincident", 7, 2, 8, 1))
sketch8.addConstraint(Sketcher.Constraint("Coincident", 8, 2, 9, 1))
sketch8.addConstraint(Sketcher.Constraint("Coincident", 9, 2, 10, 1))
sketch8.addConstraint(Sketcher.Constraint("Coincident", 10, 2, 11, 1))
sketch8.addConstraint(Sketcher.Constraint("Coincident", 11, 2, 0, 1))
sketch8.addConstraint(Sketcher.Constraint("Coincident", 12, 2, 13, 1))
sketch8.addConstraint(Sketcher.Constraint("Coincident", 13, 2, 14, 1))
sketch8.addConstraint(Sketcher.Constraint("Coincident", 14, 2, 15, 1))
sketch8.addConstraint(Sketcher.Constraint("Coincident", 15, 2, 16, 1))
sketch8.addConstraint(Sketcher.Constraint("Coincident", 16, 2, 17, 1))
sketch8.addConstraint(Sketcher.Constraint("Coincident", 17, 2, 18, 1))
sketch8.addConstraint(Sketcher.Constraint("Coincident", 18, 2, 19, 1))
sketch8.addConstraint(Sketcher.Constraint("Coincident", 19, 2, 20, 1))
sketch8.addConstraint(Sketcher.Constraint("Coincident", 20, 2, 21, 1))
sketch8.addConstraint(Sketcher.Constraint("Coincident", 21, 2, 22, 1))
sketch8.addConstraint(Sketcher.Constraint("Coincident", 22, 2, 23, 1))
sketch8.addConstraint(Sketcher.Constraint("Coincident", 23, 2, 12, 1))
sketch8.addConstraint(Sketcher.Constraint("Horizontal", 0))
sketch8.addConstraint(Sketcher.Constraint("Vertical", 1))
sketch8.addConstraint(Sketcher.Constraint("Horizontal", 2))
sketch8.addConstraint(Sketcher.Constraint("Vertical", 4))
sketch8.addConstraint(Sketcher.Constraint("Horizontal", 6))
sketch8.addConstraint(Sketcher.Constraint("Vertical", 8))
sketch8.addConstraint(Sketcher.Constraint("Horizontal", 10))
sketch8.addConstraint(Sketcher.Constraint("Vertical", 11))
sketch8.addConstraint(Sketcher.Constraint("Horizontal", 12))
sketch8.addConstraint(Sketcher.Constraint("Vertical", 13))
sketch8.addConstraint(Sketcher.Constraint("Horizontal", 14))
sketch8.addConstraint(Sketcher.Constraint("Vertical", 15))
sketch8.addConstraint(Sketcher.Constraint("Horizontal", 16))
sketch8.addConstraint(Sketcher.Constraint("Vertical", 18))
sketch8.addConstraint(Sketcher.Constraint("Horizontal", 20))
sketch8.addConstraint(Sketcher.Constraint("Vertical", 22))
sketch8.addConstraint(Sketcher.Constraint("Symmetric", 12, 2, 15, 2, -1, 1))
sketch8.addConstraint(Sketcher.Constraint("Symmetric", 4, 2, 7, 2, -2))
sketch8.addConstraint(Sketcher.Constraint("Symmetric", 2, 2, 9, 2, -2))
sketch8.addConstraint(Sketcher.Constraint("Symmetric", 18, 2, 21, 2, -2))
sketch8.addConstraint(Sketcher.Constraint("Symmetric", 16, 2, 23, 2, -2))
sketch8.addConstraint(Sketcher.Constraint("Perpendicular", 3, 9))
sketch8.addConstraint(Sketcher.Constraint("Parallel", 9, 17))
sketch8.addConstraint(Sketcher.Constraint("Parallel", 7, 19))
sketch8.addConstraint(Sketcher.Constraint("Parallel", 5, 21))
sketch8.addConstraint(Sketcher.Constraint("Perpendicular", 17, 23))
sketch8.addConstraint(Sketcher.Constraint("Horizontal", 3, 2, 8, 2))
sketch8.addConstraint(Sketcher.Constraint("Equal", 2, 10))
sketch8.addConstraint(Sketcher.Constraint("Equal", 14, 1))
sketch8.addConstraint(Sketcher.Constraint("Equal", 11, 13))
sketch8.addConstraint(Sketcher.Constraint("Equal", 5, 7))
sketch8.addConstraint(Sketcher.Constraint("DistanceX", 0, 1, 0, 2, 160.0))
sketch8.addConstraint(Sketcher.Constraint("DistanceX", 12, 2, 12, 1, 100.0))
sketch8.addConstraint(Sketcher.Constraint("DistanceX", 14, 2, 14, 1, 150.0))
sketch8.addConstraint(Sketcher.Constraint("DistanceX", 20, 1, 20, 2, 300.0))
sketch8.addConstraint(Sketcher.Constraint("DistanceY", 18, 2, 18, 1, 400.0))
sketch8.addConstraint(Sketcher.Constraint("DistanceY", -1, 1, 0, 2, 155.0))
sketch8.addConstraint(Sketcher.Constraint("DistanceX", -1, 1, 3, 2, 230.0))
sketch8.addConstraint(Sketcher.Constraint("DistanceY", 5, 2, -1, 1, 605.0))
sketch8.addConstraint(Sketcher.Constraint("DistanceX", 17, 2, -1, 1, 225.0))
sketch8.addConstraint(Sketcher.Constraint("DistanceY", 19, 2, -1, 1, 600.0))
sketch8.addConstraint(Sketcher.Constraint("DistanceX", 6, 2, 6, 1, 306.18034))
sketch8.addConstraint(Sketcher.Constraint("DistanceX", 2, 1, 2, 2, 97.071068))
pad8 = doc.addObject("PartDesign::Pad", "Pad007")
body8.addObject(pad8)
pad8.Profile = sketch8
pad8.Length = 1
body9 = doc.addObject("PartDesign::Body", "Body008")

sketch9 = doc.addObject("Sketcher::SketchObject", "Sketch008")
body9.addObject(sketch9)
sketch9.AttachmentSupport = (doc.getObject("XZ_Plane008"), [""])
sketch9.MapMode = "FlatFace"
sketch9.addGeometry(Part.LineSegment(V(-230, -451, 0), V(-153, -605, 0)), False)
sketch9.addGeometry(Part.LineSegment(V(-153, -605, 0), V(153, -605, 0)), False)
sketch9.addGeometry(Part.LineSegment(V(153, -605, 0), V(150, -600, 0)), False)
sketch9.addGeometry(Part.LineSegment(V(150, -600, 0), V(-225, -50, 0)), False)
sketch9.addGeometry(Part.LineSegment(V(-225, -50, 0), V(-230, -48, 0)), False)
sketch9.addGeometry(Part.LineSegment(V(-230, -48, 0), V(-230, -451, 0)), False)
sketch9.addConstraint(Sketcher.Constraint("Coincident", 0, 2, 1, 1))
sketch9.addConstraint(Sketcher.Constraint("Coincident", 1, 2, 2, 1))
sketch9.addConstraint(Sketcher.Constraint("Coincident", 2, 2, 3, 1))
sketch9.addConstraint(Sketcher.Constraint("Coincident", 3, 2, 4, 1))
sketch9.addConstraint(Sketcher.Constraint("Coincident", 4, 2, 5, 1))
sketch9.addConstraint(Sketcher.Constraint("Coincident", 5, 2, 0, 1))
sketch9.addConstraint(Sketcher.Constraint("Horizontal", 1))
sketch9.addConstraint(Sketcher.Constraint("Vertical", 5))
sketch9.addConstraint(Sketcher.Constraint("DistanceY", 0, 2, -1, 1, 605.0))
sketch9.addConstraint(Sketcher.Constraint("DistanceX", -1, 1, 2, 2, 150.0))
sketch9.addConstraint(Sketcher.Constraint("DistanceY", 2, 2, -1, 1, 600.0))
sketch9.addConstraint(Sketcher.Constraint("DistanceX", 3, 2, -1, 1, 225.0))
sketch9.addConstraint(Sketcher.Constraint("DistanceY", 3, 2, -1, 1, 50.0))
sketch9.addConstraint(Sketcher.Constraint("DistanceX", 4, 2, -1, 1, 230.0))
sketch9.addConstraint(Sketcher.Constraint("Angle", 4, Q("157.499998 deg")))
sketch9.addConstraint(Sketcher.Constraint("DistanceX", 1, 1, 1, 2, 306.18034))
sketch9.addConstraint(Sketcher.Constraint("Distance", 0, 171.975608))
sketch9.addConstraint(Sketcher.Constraint("DistanceY", 5, 2, 5, 1, 403.251408))
pad9 = doc.addObject("PartDesign::Pad", "Pad008")
body9.addObject(pad9)
pad9.Profile = sketch9
pad9.Length = 1

doc.recompute()
